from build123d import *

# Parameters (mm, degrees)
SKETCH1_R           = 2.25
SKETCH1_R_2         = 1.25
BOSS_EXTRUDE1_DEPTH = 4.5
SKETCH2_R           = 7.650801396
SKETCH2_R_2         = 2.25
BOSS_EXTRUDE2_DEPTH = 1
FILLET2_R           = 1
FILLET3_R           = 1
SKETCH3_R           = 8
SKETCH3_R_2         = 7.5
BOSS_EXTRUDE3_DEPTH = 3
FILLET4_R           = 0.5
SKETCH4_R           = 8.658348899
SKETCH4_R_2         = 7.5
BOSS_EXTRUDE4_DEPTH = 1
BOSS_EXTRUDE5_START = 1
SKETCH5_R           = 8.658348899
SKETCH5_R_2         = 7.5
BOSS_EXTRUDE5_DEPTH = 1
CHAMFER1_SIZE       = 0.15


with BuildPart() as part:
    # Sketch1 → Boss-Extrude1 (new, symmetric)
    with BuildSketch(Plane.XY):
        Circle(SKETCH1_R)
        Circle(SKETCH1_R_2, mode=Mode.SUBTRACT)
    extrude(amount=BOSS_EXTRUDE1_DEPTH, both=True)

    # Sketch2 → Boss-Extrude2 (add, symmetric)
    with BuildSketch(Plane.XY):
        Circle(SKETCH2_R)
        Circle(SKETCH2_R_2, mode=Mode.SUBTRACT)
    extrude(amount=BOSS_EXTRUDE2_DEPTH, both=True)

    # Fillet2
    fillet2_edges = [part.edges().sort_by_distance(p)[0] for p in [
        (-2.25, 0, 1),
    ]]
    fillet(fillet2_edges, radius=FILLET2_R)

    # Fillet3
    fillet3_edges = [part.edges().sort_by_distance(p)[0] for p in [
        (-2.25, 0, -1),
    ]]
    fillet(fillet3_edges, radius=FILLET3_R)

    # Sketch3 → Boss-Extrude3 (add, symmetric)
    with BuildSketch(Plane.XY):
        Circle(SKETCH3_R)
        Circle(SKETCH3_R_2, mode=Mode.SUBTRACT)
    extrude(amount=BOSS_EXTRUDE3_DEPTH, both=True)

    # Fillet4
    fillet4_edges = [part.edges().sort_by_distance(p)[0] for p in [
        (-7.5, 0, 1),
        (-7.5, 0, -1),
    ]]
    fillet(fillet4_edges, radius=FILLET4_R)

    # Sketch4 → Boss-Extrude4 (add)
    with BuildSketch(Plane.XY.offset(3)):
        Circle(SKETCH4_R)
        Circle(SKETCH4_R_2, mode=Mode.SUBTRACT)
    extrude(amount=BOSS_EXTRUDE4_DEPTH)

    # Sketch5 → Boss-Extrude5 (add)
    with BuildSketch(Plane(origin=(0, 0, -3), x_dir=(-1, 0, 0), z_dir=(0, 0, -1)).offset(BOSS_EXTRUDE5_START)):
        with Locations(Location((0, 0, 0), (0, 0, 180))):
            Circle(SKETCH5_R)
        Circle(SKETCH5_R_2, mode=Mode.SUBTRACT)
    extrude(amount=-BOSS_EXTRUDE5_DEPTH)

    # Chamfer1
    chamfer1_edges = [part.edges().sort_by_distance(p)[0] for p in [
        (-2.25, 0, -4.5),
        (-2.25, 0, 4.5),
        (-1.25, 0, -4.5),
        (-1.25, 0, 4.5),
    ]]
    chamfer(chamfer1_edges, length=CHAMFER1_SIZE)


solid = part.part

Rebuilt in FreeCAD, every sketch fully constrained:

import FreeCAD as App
import Part
import Sketcher

V = App.Vector
Q = App.Units.Quantity


def edges_at(feature, points):
    """Names of the edges that pass closest to the given points."""
    edges = feature.Shape.Edges
    near = lambda p: min(range(len(edges)), key=lambda i: edges[i].distToShape(Part.Vertex(*p))[0])
    return sorted({f"Edge{near(p) + 1}" for p in points})

doc = App.newDocument("Part")
body = doc.addObject("PartDesign::Body", "Body")

sketch1 = body.newObject("Sketcher::SketchObject", "Sketch")
sketch1.AttachmentSupport = (doc.getObject("XY_Plane"), [""])
sketch1.MapMode = "FlatFace"
sketch1.addGeometry(Part.Circle(V(0, 0, 0), V(0, 0, 1), 2.25), False)
sketch1.addGeometry(Part.Circle(V(0, 0, 0), V(0, 0, 1), 1.25), False)
sketch1.addConstraint(Sketcher.Constraint("Coincident", 0, 3, -1, 1))
sketch1.addConstraint(Sketcher.Constraint("Coincident", 1, 3, -1, 1))
sketch1.addConstraint(Sketcher.Constraint("Diameter", 0, Q("4.5 mm")))
sketch1.addConstraint(Sketcher.Constraint("Diameter", 1, Q("2.5 mm")))
pad1 = body.newObject("PartDesign::Pad", "Pad")
pad1.Profile = sketch1
pad1.Length = 9
pad1.Midplane = True

sketch2 = body.newObject("Sketcher::SketchObject", "Sketch001")
sketch2.AttachmentSupport = (doc.getObject("XY_Plane"), [""])
sketch2.MapMode = "FlatFace"
sketch2.addGeometry(Part.Circle(V(0, 0, 0), V(0, 0, 1), 7.650801), False)
sketch2.addGeometry(Part.Circle(V(0, 0, 0), V(0, 0, 1), 2.25), False)
sketch2.addConstraint(Sketcher.Constraint("Coincident", 0, 3, -1, 1))
sketch2.addConstraint(Sketcher.Constraint("Coincident", 1, 3, -1, 1))
sketch2.addConstraint(Sketcher.Constraint("Diameter", 1, Q("4.5 mm")))
sketch2.addConstraint(Sketcher.Constraint("Diameter", 0, Q("15.301603 mm")))
pad2 = body.newObject("PartDesign::Pad", "Pad001")
pad2.Profile = sketch2
pad2.Length = 2
pad2.Midplane = True
doc.recompute()

fillet = body.newObject("PartDesign::Fillet", "Fillet")
fillet.Base = (pad2, edges_at(pad2, [(-2.25, 0, 1)]))
fillet.Radius = 1
doc.recompute()

fillet2 = body.newObject("PartDesign::Fillet", "Fillet001")
fillet2.Base = (fillet, edges_at(fillet, [(-2.25, 0, -1)]))
fillet2.Radius = 1

sketch3 = body.newObject("Sketcher::SketchObject", "Sketch002")
sketch3.AttachmentSupport = (doc.getObject("XY_Plane"), [""])
sketch3.MapMode = "FlatFace"
sketch3.addGeometry(Part.Circle(V(0, 0, 0), V(0, 0, 1), 8), False)
sketch3.addGeometry(Part.Circle(V(0, 0, 0), V(0, 0, 1), 7.5), False)
sketch3.addConstraint(Sketcher.Constraint("Coincident", 0, 3, -1, 1))
sketch3.addConstraint(Sketcher.Constraint("Coincident", 1, 3, -1, 1))
sketch3.addConstraint(Sketcher.Constraint("Diameter", 0, Q("16 mm")))
sketch3.addConstraint(Sketcher.Constraint("Diameter", 1, Q("15 mm")))
pad3 = body.newObject("PartDesign::Pad", "Pad002")
pad3.Profile = sketch3
pad3.Length = 6
pad3.Midplane = True
doc.recompute()

fillet3 = body.newObject("PartDesign::Fillet", "Fillet002")
fillet3.Base = (pad3, edges_at(pad3, [(-7.5, 0, 1), (-7.5, 0, -1)]))
fillet3.Radius = 0.5

sketch4 = body.newObject("Sketcher::SketchObject", "Sketch003")
sketch4.AttachmentSupport = (doc.getObject("XY_Plane"), [""])
sketch4.MapMode = "FlatFace"
sketch4.AttachmentOffset = App.Placement(V(0, 0, 3), App.Rotation())
sketch4.addGeometry(Part.Circle(V(0, 0, 0), V(0, 0, 1), 8.658349), False)
sketch4.addGeometry(Part.Circle(V(0, 0, 0), V(0, 0, 1), 7.5), False)
sketch4.addConstraint(Sketcher.Constraint("Coincident", 0, 3, -1, 1))
sketch4.addConstraint(Sketcher.Constraint("Coincident", 1, 3, -1, 1))
sketch4.addConstraint(Sketcher.Constraint("Diameter", 1, Q("15 mm")))
sketch4.addConstraint(Sketcher.Constraint("Diameter", 0, Q("17.316698 mm")))
pad4 = body.newObject("PartDesign::Pad", "Pad003")
pad4.Profile = sketch4
pad4.Length = 1

sketch5 = body.newObject("Sketcher::SketchObject", "Sketch004")
sketch5.AttachmentSupport = (doc.getObject("XY_Plane"), [""])
sketch5.MapMode = "FlatFace"
sketch5.AttachmentOffset = App.Placement(V(0, 0, -4), App.Rotation())
sketch5.addGeometry(Part.Circle(V(0, 0, 0), V(0, 0, 1), 8.658349), False)
sketch5.addGeometry(Part.Circle(V(0, 0, 0), V(0, 0, 1), 7.5), False)
sketch5.addConstraint(Sketcher.Constraint("Coincident", 0, 3, -1, 1))
sketch5.addConstraint(Sketcher.Constraint("Coincident", 1, 3, -1, 1))
sketch5.addConstraint(Sketcher.Constraint("Diameter", 1, Q("15 mm")))
sketch5.addConstraint(Sketcher.Constraint("Diameter", 0, Q("17.316698 mm")))
pad5 = body.newObject("PartDesign::Pad", "Pad004")
pad5.Profile = sketch5
pad5.Length = 1
doc.recompute()

chamfer = body.newObject("PartDesign::Chamfer", "Chamfer")
chamfer.Base = (pad5, edges_at(pad5, [
    (-2.25, 0, -4.5),
    (-2.25, 0, 4.5),
    (-1.25, 0, -4.5),
    (-1.25, 0, 4.5),
]))
chamfer.Size = 0.15

doc.recompute()
